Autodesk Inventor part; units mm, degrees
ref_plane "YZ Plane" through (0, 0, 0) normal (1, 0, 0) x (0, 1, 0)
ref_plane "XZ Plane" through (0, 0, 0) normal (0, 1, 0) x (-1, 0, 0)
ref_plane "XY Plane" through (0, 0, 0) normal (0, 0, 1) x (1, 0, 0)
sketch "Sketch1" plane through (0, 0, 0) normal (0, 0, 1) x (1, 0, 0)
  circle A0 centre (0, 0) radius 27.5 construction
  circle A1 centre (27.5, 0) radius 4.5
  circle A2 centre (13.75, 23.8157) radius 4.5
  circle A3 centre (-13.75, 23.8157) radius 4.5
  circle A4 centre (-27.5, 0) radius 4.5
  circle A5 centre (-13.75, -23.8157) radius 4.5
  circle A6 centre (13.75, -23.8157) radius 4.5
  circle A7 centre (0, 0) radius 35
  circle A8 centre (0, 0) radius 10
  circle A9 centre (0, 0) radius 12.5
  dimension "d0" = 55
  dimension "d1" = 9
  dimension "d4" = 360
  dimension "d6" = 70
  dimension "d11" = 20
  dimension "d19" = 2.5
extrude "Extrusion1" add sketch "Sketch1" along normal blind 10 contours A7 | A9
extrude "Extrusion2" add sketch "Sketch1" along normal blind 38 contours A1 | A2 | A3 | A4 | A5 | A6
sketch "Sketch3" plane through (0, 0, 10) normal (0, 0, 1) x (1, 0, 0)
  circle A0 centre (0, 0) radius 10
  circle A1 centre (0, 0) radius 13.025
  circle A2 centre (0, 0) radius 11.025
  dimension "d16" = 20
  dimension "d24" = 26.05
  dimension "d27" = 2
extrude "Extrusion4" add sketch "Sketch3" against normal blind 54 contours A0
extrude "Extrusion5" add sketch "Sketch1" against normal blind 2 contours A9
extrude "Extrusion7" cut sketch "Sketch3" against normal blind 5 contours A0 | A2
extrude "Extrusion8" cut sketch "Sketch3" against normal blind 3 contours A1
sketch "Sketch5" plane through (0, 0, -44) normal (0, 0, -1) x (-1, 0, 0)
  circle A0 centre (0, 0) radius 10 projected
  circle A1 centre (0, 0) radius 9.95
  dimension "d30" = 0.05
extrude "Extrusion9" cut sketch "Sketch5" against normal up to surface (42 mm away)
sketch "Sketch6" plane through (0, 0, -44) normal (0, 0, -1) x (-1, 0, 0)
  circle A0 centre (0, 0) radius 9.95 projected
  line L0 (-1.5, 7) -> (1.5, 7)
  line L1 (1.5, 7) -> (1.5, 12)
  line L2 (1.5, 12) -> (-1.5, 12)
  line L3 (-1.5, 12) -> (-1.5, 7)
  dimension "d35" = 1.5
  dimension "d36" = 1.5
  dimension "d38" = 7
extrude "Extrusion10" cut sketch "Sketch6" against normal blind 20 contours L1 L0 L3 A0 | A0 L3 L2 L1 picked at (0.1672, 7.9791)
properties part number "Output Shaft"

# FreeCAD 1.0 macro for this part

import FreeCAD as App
import Part
import Sketcher

V = App.Vector
Q = App.Units.Quantity

doc = App.newDocument("Part")
body = doc.addObject("PartDesign::Body", "Body")

# Sketch on XY plane
sketch1 = doc.addObject("Sketcher::SketchObject", "Sketch")
body.addObject(sketch1)
sketch1.AttachmentSupport = (doc.XY_Plane, [""])
sketch1.MapMode = "FlatFace"
sketch1.addGeometry([
    Part.Circle(V(0, 0, 0), V(0, 0, 1), 35),  # 0
    Part.Circle(V(-13.75, -23.8157, 0), V(0, 0, 1), 4.5),  # 1
    Part.Circle(V(13.75, -23.8157, 0), V(0, 0, 1), 4.5),  # 2
    Part.Circle(V(-27.5, 0, 0), V(0, 0, 1), 4.5),  # 3
    Part.Circle(V(-13.75, 23.8157, 0), V(0, 0, 1), 4.5),  # 4
    Part.Circle(V(27.5, 0, 0), V(0, 0, 1), 4.5),  # 5
    Part.Circle(V(13.75, 23.8157, 0), V(0, 0, 1), 4.5),  # 6
    Part.Circle(V(0, 0, 0), V(0, 0, 1), 10),  # 7
], False)
sketch1.addConstraint([
    Sketcher.Constraint("Coincident", 0, 3, -1, 1),
    Sketcher.Constraint("Coincident", 7, 3, -1, 1),
    Sketcher.Constraint("Equal", 1, 2),
    Sketcher.Constraint("Equal", 2, 3),
    Sketcher.Constraint("Equal", 3, 4),
    Sketcher.Constraint("Equal", 4, 5),
    Sketcher.Constraint("Equal", 5, 6),
    Sketcher.Constraint("Symmetric", 2, 3, 4, 3, -1, 1),
    Sketcher.Constraint("Symmetric", 3, 3, 5, 3, -1, 1),
    Sketcher.Constraint("Symmetric", 1, 3, 6, 3, -1, 1),
    Sketcher.Constraint("Symmetric", 1, 3, 2, 3, -2),
    Sketcher.Constraint("PointOnObject", 3, 3, -1),
    Sketcher.Constraint("Diameter", 0, Q("70 mm")),
    Sketcher.Constraint("Diameter", 1, Q("9 mm")),
    Sketcher.Constraint("Diameter", 7, Q("20 mm")),
    Sketcher.Constraint("DistanceX", 3, 3, 5, 3, Q("55 mm")),
    Sketcher.Constraint("DistanceX", 1, 3, 2, 3, Q("27.5 mm")),
    Sketcher.Constraint("DistanceY", 1, 3, -1, 1, Q("23.8157 mm")),
])
pad1 = doc.addObject("PartDesign::Pad", "Pad")
body.addObject(pad1)
pad1.Profile = sketch1
pad1.Length = 10

# Sketch on XY plane
sketch2 = doc.addObject("Sketcher::SketchObject", "Sketch001")
body.addObject(sketch2)
sketch2.AttachmentSupport = (doc.XY_Plane, [""])
sketch2.MapMode = "FlatFace"
sketch2.addGeometry([
    Part.Circle(V(27.5, 0, 0), V(0, 0, 1), 4.5),  # 0
    Part.Circle(V(13.75, 23.8157, 0), V(0, 0, 1), 4.5),  # 1
    Part.Circle(V(-13.75, 23.8157, 0), V(0, 0, 1), 4.5),  # 2
    Part.Circle(V(-27.5, 0, 0), V(0, 0, 1), 4.5),  # 3
    Part.Circle(V(-13.75, -23.8157, 0), V(0, 0, 1), 4.5),  # 4
    Part.Circle(V(13.75, -23.8157, 0), V(0, 0, 1), 4.5),  # 5
], False)
sketch2.addConstraint([
    Sketcher.Constraint("Equal", 0, 1),
    Sketcher.Constraint("Equal", 1, 2),
    Sketcher.Constraint("Equal", 2, 3),
    Sketcher.Constraint("Equal", 3, 4),
    Sketcher.Constraint("Equal", 4, 5),
    Sketcher.Constraint("Symmetric", 0, 3, 3, 3, -1, 1),
    Sketcher.Constraint("Symmetric", 1, 3, 4, 3, -1, 1),
    Sketcher.Constraint("Symmetric", 2, 3, 5, 3, -1, 1),
    Sketcher.Constraint("Symmetric", 1, 3, 2, 3, -2),
    Sketcher.Constraint("PointOnObject", 0, 3, -1),
    Sketcher.Constraint("Diameter", 0, Q("9 mm")),
    Sketcher.Constraint("DistanceX", 3, 3, 0, 3, Q("55 mm")),
    Sketcher.Constraint("DistanceX", 2, 3, 1, 3, Q("27.5 mm")),
    Sketcher.Constraint("DistanceY", -1, 1, 1, 3, Q("23.8157 mm")),
])
pad2 = doc.addObject("PartDesign::Pad", "Pad001")
body.addObject(pad2)
pad2.Profile = sketch2
pad2.Length = 38

# Sketch on XY plane
sketch3 = doc.addObject("Sketcher::SketchObject", "Sketch002")
body.addObject(sketch3)
sketch3.AttachmentSupport = (doc.XY_Plane, [""])
sketch3.MapMode = "FlatFace"
sketch3.AttachmentOffset = App.Placement(V(0, 0, 10), App.Rotation())
sketch3.addGeometry(Part.Circle(V(0, 0, 0), V(0, 0, 1), 10), False)
sketch3.addConstraint([
    Sketcher.Constraint("Coincident", 0, 3, -1, 1),
    Sketcher.Constraint("Diameter", 0, Q("20 mm")),
])
pad3 = doc.addObject("PartDesign::Pad", "Pad002")
body.addObject(pad3)
pad3.Profile = sketch3
pad3.Length = 54
pad3.Reversed = True

# Sketch on XY plane
sketch4 = doc.addObject("Sketcher::SketchObject", "Sketch003")
body.addObject(sketch4)
sketch4.AttachmentSupport = (doc.XY_Plane, [""])
sketch4.MapMode = "FlatFace"
sketch4.addGeometry([
    Part.Circle(V(0, 0, 0), V(0, 0, 1), 12.5),
    Part.Circle(V(0, 0, 0), V(0, 0, 1), 10),
], False)
sketch4.addConstraint([
    Sketcher.Constraint("Coincident", 0, 3, -1, 1),
    Sketcher.Constraint("Coincident", 1, 3, -1, 1),
    Sketcher.Constraint("Diameter", 1, Q("20 mm")),
    Sketcher.Constraint("Diameter", 0, Q("25 mm")),
])
pad4 = doc.addObject("PartDesign::Pad", "Pad003")
body.addObject(pad4)
pad4.Profile = sketch4
pad4.Length = 2
pad4.Reversed = True

# Sketch on XY plane
sketch5 = doc.addObject("Sketcher::SketchObject", "Sketch004")
body.addObject(sketch5)
sketch5.AttachmentSupport = (doc.XY_Plane, [""])
sketch5.MapMode = "FlatFace"
sketch5.AttachmentOffset = App.Placement(V(0, 0, 10), App.Rotation())
sketch5.addGeometry(Part.Circle(V(0, 0, 0), V(0, 0, 1), 11.025), False)
sketch5.addConstraint([
    Sketcher.Constraint("Coincident", 0, 3, -1, 1),
    Sketcher.Constraint("Diameter", 0, Q("22.05 mm")),
])
pocket1 = doc.addObject("PartDesign::Pocket", "Pocket")
body.addObject(pocket1)
pocket1.Profile = sketch5
pocket1.Length = 5

# Sketch on XY plane
sketch6 = doc.addObject("Sketcher::SketchObject", "Sketch005")
body.addObject(sketch6)
sketch6.AttachmentSupport = (doc.XY_Plane, [""])
sketch6.MapMode = "FlatFace"
sketch6.AttachmentOffset = App.Placement(V(0, 0, 10), App.Rotation())
sketch6.addGeometry([
    Part.Circle(V(0, 0, 0), V(0, 0, 1), 13.025),
    Part.Circle(V(0, 0, 0), V(0, 0, 1), 11.025),
], False)
sketch6.addConstraint([
    Sketcher.Constraint("Coincident", 0, 3, -1, 1),
    Sketcher.Constraint("Coincident", 1, 3, -1, 1),
    Sketcher.Constraint("Diameter", 0, Q("26.05 mm")),
    Sketcher.Constraint("Diameter", 1, Q("22.05 mm")),
])
pocket2 = doc.addObject("PartDesign::Pocket", "Pocket001")
body.addObject(pocket2)
pocket2.Profile = sketch6
pocket2.Length = 3

# Sketch on XY plane
sketch7 = doc.addObject("Sketcher::SketchObject", "Sketch006")
body.addObject(sketch7)
sketch7.AttachmentSupport = (doc.XY_Plane, [""])
sketch7.MapMode = "FlatFace"
sketch7.AttachmentOffset = App.Placement(V(0, 0, -44), App.Rotation())
sketch7.addGeometry([
    Part.Circle(V(0, 0, 0), V(0, 0, 1), 10),
    Part.Circle(V(0, 0, 0), V(0, 0, 1), 9.95),
], False)
sketch7.addConstraint([
    Sketcher.Constraint("Coincident", 0, 3, -1, 1),
    Sketcher.Constraint("Coincident", 1, 3, -1, 1),
    Sketcher.Constraint("Diameter", 0, Q("20 mm")),
    Sketcher.Constraint("Diameter", 1, Q("19.9 mm")),
])
pocket3 = doc.addObject("PartDesign::Pocket", "Pocket002")
body.addObject(pocket3)
pocket3.Profile = sketch7
pocket3.Length = 42
pocket3.Reversed = True

# Sketch on XY plane
sketch8 = doc.addObject("Sketcher::SketchObject", "Sketch007")
body.addObject(sketch8)
sketch8.AttachmentSupport = (doc.XY_Plane, [""])
sketch8.MapMode = "FlatFace"
sketch8.AttachmentOffset = App.Placement(V(0, 0, -44), App.Rotation())
sketch8.addGeometry([
    Part.LineSegment(V(-1.5, 7, 0), V(-1.5, 12, 0)),
    Part.LineSegment(V(-1.5, 12, 0), V(1.5, 12, 0)),
    Part.LineSegment(V(1.5, 12, 0), V(1.5, 7, 0)),
    Part.LineSegment(V(1.5, 7, 0), V(-1.5, 7, 0)),
], False)
sketch8.addConstraint([
    Sketcher.Constraint("Coincident", 0, 2, 1, 1),
    Sketcher.Constraint("Coincident", 1, 2, 2, 1),
    Sketcher.Constraint("Coincident", 2, 2, 3, 1),
    Sketcher.Constraint("Coincident", 3, 2, 0, 1),
    Sketcher.Constraint("Vertical", 0),
    Sketcher.Constraint("Horizontal", 1),
    Sketcher.Constraint("Vertical", 2),
    Sketcher.Constraint("Horizontal", 3),
    Sketcher.Constraint("DistanceY", -1, 1, 2, 2, Q("7 mm")),
    Sketcher.Constraint("DistanceX", 0, 2, -1, 1, Q("1.5 mm")),
    Sketcher.Constraint("DistanceX", -1, 1, 1, 2, Q("1.5 mm")),
    Sketcher.Constraint("DistanceY", 0, 1, 0, 2, Q("5 mm")),
])
pocket4 = doc.addObject("PartDesign::Pocket", "Pocket003")
body.addObject(pocket4)
pocket4.Profile = sketch8
pocket4.Length = 20
pocket4.Reversed = True

doc.recompute()
